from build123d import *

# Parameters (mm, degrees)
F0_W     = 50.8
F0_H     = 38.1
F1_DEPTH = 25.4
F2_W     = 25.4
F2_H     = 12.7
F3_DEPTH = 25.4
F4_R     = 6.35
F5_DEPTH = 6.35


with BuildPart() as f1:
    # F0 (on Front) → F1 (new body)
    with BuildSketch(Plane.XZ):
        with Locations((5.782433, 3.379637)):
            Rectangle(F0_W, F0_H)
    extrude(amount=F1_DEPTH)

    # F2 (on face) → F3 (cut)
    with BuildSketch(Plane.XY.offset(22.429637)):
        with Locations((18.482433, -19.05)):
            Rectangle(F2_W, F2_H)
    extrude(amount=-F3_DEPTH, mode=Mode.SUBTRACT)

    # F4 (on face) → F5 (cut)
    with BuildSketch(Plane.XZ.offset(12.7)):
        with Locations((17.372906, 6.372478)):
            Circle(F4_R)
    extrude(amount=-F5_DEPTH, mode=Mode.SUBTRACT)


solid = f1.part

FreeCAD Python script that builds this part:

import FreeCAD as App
import Part
import Sketcher

V = App.Vector
Q = App.Units.Quantity


def add_polygon(sketch, points):
    """Adds a closed chain of lines whose ends are joined by coincident constraints."""
    first, n = sketch.GeometryCount, len(points)
    for a, b in zip(points, points[1:] + points[:1]):
        sketch.addGeometry(Part.LineSegment(App.Vector(*a, 0), App.Vector(*b, 0)), False)
    for i in range(n):
        sketch.addConstraint(Sketcher.Constraint("Coincident", first + i, 2, first + (i + 1) % n, 1))

doc = App.newDocument("Part")
body = doc.addObject("PartDesign::Body", "Body")

# Sketch on XZ plane
sketch1 = body.newObject("Sketcher::SketchObject", "Sketch")
sketch1.AttachmentSupport = (doc.getObject("XZ_Plane"), [""])
sketch1.MapMode = "FlatFace"
add_polygon(sketch1, [(-20, 22), (-20, -16), (31, -16), (31, 22)])  # lines 0-3
sketch1.addConstraint([
    Sketcher.Constraint("Vertical", 0),
    Sketcher.Constraint("Horizontal", 1),
    Sketcher.Constraint("Vertical", 2),
    Sketcher.Constraint("Horizontal", 3),
    Sketcher.Constraint("DistanceX", 1, 1, 1, 2, Q("2 in")),
    Sketcher.Constraint("DistanceY", 0, 2, 0, 1, Q("1.5 in")),
    Sketcher.Constraint("DistanceX", 0, 2, -1, 1, 19.617567),
    Sketcher.Constraint("DistanceY", 0, 2, -1, 1, 15.670363),
])
pad1 = body.newObject("PartDesign::Pad", "Pad")
pad1.Profile = sketch1
pad1.Length = Q("1 in")

# Sketch on XY plane
sketch2 = body.newObject("Sketcher::SketchObject", "Sketch001")
sketch2.AttachmentSupport = (doc.getObject("XY_Plane"), [""])
sketch2.MapMode = "FlatFace"
sketch2.AttachmentOffset = App.Placement(V(0, 0, 22.429637), App.Rotation())
add_polygon(sketch2, [(6, -13), (6, -25), (31, -25), (31, -13)])  # lines 0-3
sketch2.addConstraint([
    Sketcher.Constraint("Vertical", 0),
    Sketcher.Constraint("Horizontal", 1),
    Sketcher.Constraint("Vertical", 2),
    Sketcher.Constraint("Horizontal", 3),
    Sketcher.Constraint("DistanceX", 1, 1, 1, 2, Q("1 in")),
    Sketcher.Constraint("DistanceY", 0, 2, 0, 1, Q("0.5 in")),
    Sketcher.Constraint("DistanceY", 0, 2, -1, 1, Q("1 in")),
    Sketcher.Constraint("DistanceX", -1, 1, 0, 2, 5.782433),
])
pocket1 = body.newObject("PartDesign::Pocket", "Pocket")
pocket1.Profile = sketch2
pocket1.Length = Q("1 in")

# Sketch on XZ plane
sketch3 = body.newObject("Sketcher::SketchObject", "Sketch002")
sketch3.AttachmentSupport = (doc.getObject("XZ_Plane"), [""])
sketch3.MapMode = "FlatFace"
sketch3.AttachmentOffset = App.Placement(V(0, 0, 0.5 * 25.4), App.Rotation())
sketch3.addGeometry(Part.Circle(V(17, 6, 0), V(0, 0, 1), 6), False)
sketch3.addConstraint([
    Sketcher.Constraint("Diameter", 0, Q("0.5 in")),
    Sketcher.Constraint("DistanceX", -1, 1, 0, 3, 17.372906),
    Sketcher.Constraint("DistanceY", -1, 1, 0, 3, 6.372478),
])
pocket2 = body.newObject("PartDesign::Pocket", "Pocket001")
pocket2.Profile = sketch3
pocket2.Length = Q("0.25 in")

doc.recompute()
